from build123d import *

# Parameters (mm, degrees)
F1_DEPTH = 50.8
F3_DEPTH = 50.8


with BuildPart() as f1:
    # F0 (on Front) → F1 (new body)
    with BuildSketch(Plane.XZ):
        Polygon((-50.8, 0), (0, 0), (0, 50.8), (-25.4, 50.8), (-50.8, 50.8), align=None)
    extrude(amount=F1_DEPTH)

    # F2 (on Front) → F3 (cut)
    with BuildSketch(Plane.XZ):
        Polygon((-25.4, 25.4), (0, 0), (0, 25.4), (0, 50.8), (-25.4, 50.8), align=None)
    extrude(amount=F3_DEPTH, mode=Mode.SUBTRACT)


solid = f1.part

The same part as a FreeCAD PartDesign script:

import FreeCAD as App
import Part
import Sketcher
Q = App.Units.Quantity

doc = App.newDocument("Part")
body = doc.addObject("PartDesign::Body", "Body")

sketch1 = body.newObject("Sketcher::SketchObject", "Sketch")
sketch1.AttachmentSupport = (doc.getObject("XZ_Plane"), [""])
sketch1.MapMode = "FlatFace"
sketch1.addGeometry([
    Part.LineSegment(App.Vector(-51, 0, 0), App.Vector(0, 0, 0)),
    Part.LineSegment(App.Vector(0, 0, 0), App.Vector(0, 51, 0)),
    Part.LineSegment(App.Vector(0, 51, 0), App.Vector(-51, 51, 0)),
    Part.LineSegment(App.Vector(-51, 51, 0), App.Vector(-51, 0, 0)),
], False)
sketch1.addConstraint([
    Sketcher.Constraint("Coincident", 0, 2, 1, 1),
    Sketcher.Constraint("Coincident", 1, 2, 2, 1),
    Sketcher.Constraint("Coincident", 2, 2, 3, 1),
    Sketcher.Constraint("Coincident", 3, 2, 0, 1),
    Sketcher.Constraint("Horizontal", 0),
    Sketcher.Constraint("Vertical", 1),
    Sketcher.Constraint("Horizontal", 2),
    Sketcher.Constraint("Vertical", 3),
    Sketcher.Constraint("Coincident", 0, 2, -1, 1),
    Sketcher.Constraint("Equal", 2, 1),
    Sketcher.Constraint("DistanceX", 0, 1, 0, 2, Q("2 in")),
])
pad1 = body.newObject("PartDesign::Pad", "Pad")
pad1.Profile = sketch1
pad1.Length = Q("2 in")

sketch2 = body.newObject("Sketcher::SketchObject", "Sketch001")
sketch2.AttachmentSupport = (doc.getObject("XZ_Plane"), [""])
sketch2.MapMode = "FlatFace"
sketch2.addGeometry([
    Part.LineSegment(App.Vector(-25, 25, 0), App.Vector(0, 0, 0)),
    Part.LineSegment(App.Vector(0, 0, 0), App.Vector(0, 51, 0)),
    Part.LineSegment(App.Vector(0, 51, 0), App.Vector(-25, 51, 0)),
    Part.LineSegment(App.Vector(-25, 51, 0), App.Vector(-25, 25, 0)),
], False)
sketch2.addConstraint([
    Sketcher.Constraint("Coincident", 0, 2, 1, 1),
    Sketcher.Constraint("Coincident", 1, 2, 2, 1),
    Sketcher.Constraint("Coincident", 2, 2, 3, 1),
    Sketcher.Constraint("Coincident", 3, 2, 0, 1),
    Sketcher.Constraint("Vertical", 1),
    Sketcher.Constraint("Horizontal", 2),
    Sketcher.Constraint("Vertical", 3),
    Sketcher.Constraint("Coincident", 0, 2, -1, 1),
    Sketcher.Constraint("Equal", 2, 3),
    Sketcher.Constraint("DistanceX", 2, 2, 2, 1, Q("1 in")),
    Sketcher.Constraint("DistanceY", 1, 1, 1, 2, Q("2 in")),
])
pocket1 = body.newObject("PartDesign::Pocket", "Pocket")
pocket1.Profile = sketch2
pocket1.Length = Q("2 in")
pocket1.Reversed = True

doc.recompute()
